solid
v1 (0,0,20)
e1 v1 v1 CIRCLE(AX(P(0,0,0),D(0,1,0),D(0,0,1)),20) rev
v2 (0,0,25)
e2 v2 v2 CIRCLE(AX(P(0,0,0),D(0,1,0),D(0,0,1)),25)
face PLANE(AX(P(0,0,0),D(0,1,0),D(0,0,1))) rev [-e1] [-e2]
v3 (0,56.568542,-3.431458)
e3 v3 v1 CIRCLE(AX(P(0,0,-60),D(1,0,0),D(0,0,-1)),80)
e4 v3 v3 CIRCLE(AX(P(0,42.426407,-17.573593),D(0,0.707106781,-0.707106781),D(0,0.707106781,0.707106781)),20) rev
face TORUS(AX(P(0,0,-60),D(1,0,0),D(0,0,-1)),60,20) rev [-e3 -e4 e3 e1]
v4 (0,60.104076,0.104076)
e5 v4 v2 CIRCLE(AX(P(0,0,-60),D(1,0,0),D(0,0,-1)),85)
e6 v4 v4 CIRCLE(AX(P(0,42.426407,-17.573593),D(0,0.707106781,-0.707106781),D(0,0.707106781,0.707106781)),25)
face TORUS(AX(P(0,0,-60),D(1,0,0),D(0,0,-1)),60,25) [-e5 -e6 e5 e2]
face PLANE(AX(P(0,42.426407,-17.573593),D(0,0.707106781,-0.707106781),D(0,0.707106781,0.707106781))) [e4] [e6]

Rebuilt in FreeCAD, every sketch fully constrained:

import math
import FreeCAD as App
import Part
import Sketcher

V = App.Vector

doc = App.newDocument("Part")
body = doc.addObject("PartDesign::Body", "Body")

# Sketch on XZ plane
sketch1 = doc.addObject("Sketcher::SketchObject", "Sketch")
body.addObject(sketch1)
sketch1.AttachmentSupport = (doc.XZ_Plane, [""])
sketch1.MapMode = "FlatFace"
sketch1.addGeometry([
    Part.Circle(V(0, 0, 0), V(0, 0, 1), 25),
    Part.Circle(V(0, 0, 0), V(0, 0, 1), 20),
], False)
sketch1.addConstraint([
    Sketcher.Constraint("Coincident", 0, 3, -1, 1),
    Sketcher.Constraint("Coincident", 1, 3, -1, 1),
    Sketcher.Constraint("Diameter", 0, 50.0),
    Sketcher.Constraint("Diameter", 1, 40.0),
])

# Sketch on YZ plane
sketch2 = doc.addObject("Sketcher::SketchObject", "Sketch001")
body.addObject(sketch2)
sketch2.AttachmentSupport = (doc.YZ_Plane, [""])
sketch2.MapMode = "FlatFace"
sketch2.addGeometry(Part.ArcOfCircle(Part.Circle(V(0, -60, 0), V(0, 0, 1), 60), math.radians(45), math.radians(90)), False)
sketch2.addConstraint([
    Sketcher.Constraint("Coincident", 0, 2, -1, 1),
    Sketcher.Constraint("PointOnObject", 0, 3, -2),
    Sketcher.Constraint("Radius", 0, 60.0),
    Sketcher.Constraint("DistanceX", -1, 1, 0, 1, 42.426407),
])
doc.recompute()

additivepipe = doc.addObject("PartDesign::AdditivePipe", "AdditivePipe")
body.addObject(additivepipe)
additivepipe.Profile = sketch1
additivepipe.Spine = (sketch2, ["Edge1"])

doc.recompute()
